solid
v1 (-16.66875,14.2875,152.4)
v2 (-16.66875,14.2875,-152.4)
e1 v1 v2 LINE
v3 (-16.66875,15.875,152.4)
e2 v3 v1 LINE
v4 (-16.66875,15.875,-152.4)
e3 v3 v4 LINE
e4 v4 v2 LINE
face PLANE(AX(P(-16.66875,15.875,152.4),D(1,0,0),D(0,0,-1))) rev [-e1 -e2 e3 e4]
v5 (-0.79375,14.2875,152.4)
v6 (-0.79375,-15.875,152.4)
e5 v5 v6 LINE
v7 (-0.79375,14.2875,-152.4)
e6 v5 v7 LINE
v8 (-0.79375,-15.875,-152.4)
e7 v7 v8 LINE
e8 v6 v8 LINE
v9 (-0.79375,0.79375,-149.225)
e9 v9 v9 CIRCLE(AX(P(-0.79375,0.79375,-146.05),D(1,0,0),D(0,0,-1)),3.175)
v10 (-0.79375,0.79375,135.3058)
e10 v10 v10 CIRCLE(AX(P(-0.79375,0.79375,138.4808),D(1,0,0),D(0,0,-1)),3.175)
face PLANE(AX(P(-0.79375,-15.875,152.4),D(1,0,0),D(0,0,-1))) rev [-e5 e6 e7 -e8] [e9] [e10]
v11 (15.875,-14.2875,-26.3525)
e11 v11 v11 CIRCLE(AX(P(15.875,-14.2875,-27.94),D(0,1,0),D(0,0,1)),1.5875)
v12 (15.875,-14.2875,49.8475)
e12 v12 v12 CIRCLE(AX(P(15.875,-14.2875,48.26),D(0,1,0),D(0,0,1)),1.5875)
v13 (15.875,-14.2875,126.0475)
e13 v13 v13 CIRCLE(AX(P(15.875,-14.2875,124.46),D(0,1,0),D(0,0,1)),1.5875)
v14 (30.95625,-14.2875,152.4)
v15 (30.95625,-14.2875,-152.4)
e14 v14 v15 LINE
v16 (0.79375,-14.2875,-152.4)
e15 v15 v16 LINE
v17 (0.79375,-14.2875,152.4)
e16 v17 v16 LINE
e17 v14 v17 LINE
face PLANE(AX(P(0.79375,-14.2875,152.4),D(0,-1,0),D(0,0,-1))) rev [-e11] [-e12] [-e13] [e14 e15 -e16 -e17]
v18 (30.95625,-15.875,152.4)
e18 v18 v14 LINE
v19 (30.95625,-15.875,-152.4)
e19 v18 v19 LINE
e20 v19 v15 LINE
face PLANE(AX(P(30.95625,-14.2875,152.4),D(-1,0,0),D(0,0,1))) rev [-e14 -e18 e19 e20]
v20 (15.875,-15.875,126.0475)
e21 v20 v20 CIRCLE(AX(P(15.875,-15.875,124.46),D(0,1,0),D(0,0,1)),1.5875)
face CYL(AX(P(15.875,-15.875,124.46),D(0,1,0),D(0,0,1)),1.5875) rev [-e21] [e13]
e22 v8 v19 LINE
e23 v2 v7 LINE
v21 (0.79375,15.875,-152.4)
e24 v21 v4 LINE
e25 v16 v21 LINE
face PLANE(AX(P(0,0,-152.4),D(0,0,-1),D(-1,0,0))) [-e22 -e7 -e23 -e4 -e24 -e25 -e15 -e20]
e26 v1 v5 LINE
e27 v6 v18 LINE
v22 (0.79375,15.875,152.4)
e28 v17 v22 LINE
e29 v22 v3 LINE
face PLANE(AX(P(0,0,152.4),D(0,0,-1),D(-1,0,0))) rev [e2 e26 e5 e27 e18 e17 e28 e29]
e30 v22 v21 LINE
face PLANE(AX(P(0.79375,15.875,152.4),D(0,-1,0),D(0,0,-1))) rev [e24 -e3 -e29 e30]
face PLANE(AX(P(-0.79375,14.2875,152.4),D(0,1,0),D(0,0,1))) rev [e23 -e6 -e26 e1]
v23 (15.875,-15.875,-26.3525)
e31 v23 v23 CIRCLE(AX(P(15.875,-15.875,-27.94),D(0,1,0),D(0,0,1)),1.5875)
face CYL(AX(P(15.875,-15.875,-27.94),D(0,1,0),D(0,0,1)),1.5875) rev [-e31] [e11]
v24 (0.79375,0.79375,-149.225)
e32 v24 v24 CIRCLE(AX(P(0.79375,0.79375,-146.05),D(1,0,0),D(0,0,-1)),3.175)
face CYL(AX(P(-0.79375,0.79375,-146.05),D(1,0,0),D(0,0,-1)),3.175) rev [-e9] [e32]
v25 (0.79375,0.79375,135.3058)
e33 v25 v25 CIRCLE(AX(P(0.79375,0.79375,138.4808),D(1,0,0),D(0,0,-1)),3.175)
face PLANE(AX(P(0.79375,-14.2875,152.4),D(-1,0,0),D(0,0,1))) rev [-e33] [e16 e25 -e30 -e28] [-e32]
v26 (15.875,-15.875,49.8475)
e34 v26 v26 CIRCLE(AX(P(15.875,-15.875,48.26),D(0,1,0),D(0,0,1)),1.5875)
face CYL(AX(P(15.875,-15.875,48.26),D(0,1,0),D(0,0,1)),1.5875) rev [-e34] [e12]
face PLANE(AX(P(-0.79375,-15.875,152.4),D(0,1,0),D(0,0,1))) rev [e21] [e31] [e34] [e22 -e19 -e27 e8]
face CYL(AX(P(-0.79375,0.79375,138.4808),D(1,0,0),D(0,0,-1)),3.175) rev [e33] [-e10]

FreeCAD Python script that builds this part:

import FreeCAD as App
import Part
import Sketcher

V = App.Vector
Q = App.Units.Quantity

doc = App.newDocument("Part")
body = doc.addObject("PartDesign::Body", "Body")

# Sketch on XY plane
sketch1 = body.newObject("Sketcher::SketchObject", "Sketch")
sketch1.AttachmentSupport = (doc.getObject("XY_Plane"), [""])
sketch1.MapMode = "FlatFace"
sketch1.addGeometry([
    Part.LineSegment(V(31, -15.9, 0), V(31, -14.3, 0)),  # 0
    Part.LineSegment(V(31, -14.3, 0), V(0.8, -14.3, 0)),  # 1
    Part.LineSegment(V(0.8, -14.3, 0), V(0.8, 15.9, 0)),  # 2
    Part.LineSegment(V(0.8, 15.9, 0), V(-16.7, 15.9, 0)),  # 3
    Part.LineSegment(V(-16.7, 15.9, 0), V(-16.7, 14.3, 0)),  # 4
    Part.LineSegment(V(-16.7, 14.3, 0), V(-0.8, 14.3, 0)),  # 5
    Part.LineSegment(V(-0.8, 14.3, 0), V(-0.8, -15.9, 0)),  # 6
    Part.LineSegment(V(-0.8, -15.9, 0), V(31, -15.9, 0)),  # 7
], False)
sketch1.addConstraint([
    Sketcher.Constraint("Coincident", 0, 2, 1, 1),
    Sketcher.Constraint("Coincident", 1, 2, 2, 1),
    Sketcher.Constraint("Coincident", 2, 2, 3, 1),
    Sketcher.Constraint("Coincident", 3, 2, 4, 1),
    Sketcher.Constraint("Coincident", 4, 2, 5, 1),
    Sketcher.Constraint("Coincident", 5, 2, 6, 1),
    Sketcher.Constraint("Coincident", 6, 2, 7, 1),
    Sketcher.Constraint("Coincident", 7, 2, 0, 1),
    Sketcher.Constraint("Vertical", 0),
    Sketcher.Constraint("Horizontal", 1),
    Sketcher.Constraint("Vertical", 2),
    Sketcher.Constraint("Horizontal", 3),
    Sketcher.Constraint("Vertical", 4),
    Sketcher.Constraint("Horizontal", 5),
    Sketcher.Constraint("Vertical", 6),
    Sketcher.Constraint("Horizontal", 7),
    Sketcher.Constraint("Symmetric", 1, 2, 5, 2, -1, 1),
    Sketcher.Constraint("Equal", 1, 2),
    Sketcher.Constraint("Equal", 0, 4),
    Sketcher.Constraint("DistanceX", 7, 1, 7, 2, Q("1.25 in")),
    Sketcher.Constraint("DistanceX", 1, 2, 1, 1, Q("1.1875 in")),
    Sketcher.Constraint("DistanceX", 3, 2, 3, 1, Q("0.6875 in")),
    Sketcher.Constraint("DistanceY", 0, 1, 0, 2, Q("0.0625 in")),
])
pad1 = body.newObject("PartDesign::Pad", "Pad")
pad1.Profile = sketch1
pad1.Type = "TwoLengths"
pad1.Length = Q("6 in")
pad1.Length2 = Q("6 in")

# Sketch on XZ plane
sketch2 = body.newObject("Sketcher::SketchObject", "Sketch001")
sketch2.AttachmentSupport = (doc.getObject("XZ_Plane"), [""])
sketch2.MapMode = "FlatFace"
sketch2.AttachmentOffset = App.Placement(V(0, 0, 0.5625 * 25.4), App.Rotation())
sketch2.addGeometry([
    Part.Circle(V(15.9, -27.9, 0), V(0, 0, 1), 1.6),
    Part.Circle(V(15.9, 48.3, 0), V(0, 0, 1), 1.6),
    Part.Circle(V(15.9, 124.5, 0), V(0, 0, 1), 1.6),
], False)
sketch2.addConstraint([
    Sketcher.Constraint("Equal", 0, 1),
    Sketcher.Constraint("Equal", 1, 2),
    Sketcher.Constraint("Vertical", 0, 3, 1, 3),
    Sketcher.Constraint("Vertical", 1, 3, 2, 3),
    Sketcher.Constraint("Diameter", 0, Q("0.125 in")),
    Sketcher.Constraint("DistanceY", 0, 3, 1, 3, Q("3 in")),
    Sketcher.Constraint("DistanceY", 1, 3, 2, 3, Q("3 in")),
    Sketcher.Constraint("DistanceY", 0, 3, -1, 1, Q("1.1 in")),
    Sketcher.Constraint("DistanceX", -1, 1, 0, 3, Q("0.625 in")),
])
pocket1 = body.newObject("PartDesign::Pocket", "Pocket")
pocket1.Profile = sketch2
pocket1.Length = Q("0.0625 in")
pocket1.Reversed = True

# Sketch on YZ plane
sketch3 = body.newObject("Sketcher::SketchObject", "Sketch002")
sketch3.AttachmentSupport = (doc.getObject("YZ_Plane"), [""])
sketch3.MapMode = "FlatFace"
sketch3.AttachmentOffset = App.Placement(V(0, 0, 0.03125 * 25.4), App.Rotation())
sketch3.addGeometry([
    Part.Circle(V(0.8, 138.5, 0), V(0, 0, 1), 3.2),
    Part.Circle(V(0.8, -146.1, 0), V(0, 0, 1), 3.2),
], False)
sketch3.addConstraint([
    Sketcher.Constraint("Equal", 0, 1),
    Sketcher.Constraint("Vertical", 0, 3, 1, 3),
    Sketcher.Constraint("Diameter", 0, Q("0.25 in")),
    Sketcher.Constraint("DistanceY", 1, 3, -1, 1, Q("5.75 in")),
    Sketcher.Constraint("DistanceX", -1, 1, 0, 3, Q("0.03125 in")),
    Sketcher.Constraint("DistanceY", -1, 1, 0, 3, Q("5.452 in")),
])
pocket2 = body.newObject("PartDesign::Pocket", "Pocket001")
pocket2.Profile = sketch3
pocket2.Length = Q("0.0625 in")

doc.recompute()
